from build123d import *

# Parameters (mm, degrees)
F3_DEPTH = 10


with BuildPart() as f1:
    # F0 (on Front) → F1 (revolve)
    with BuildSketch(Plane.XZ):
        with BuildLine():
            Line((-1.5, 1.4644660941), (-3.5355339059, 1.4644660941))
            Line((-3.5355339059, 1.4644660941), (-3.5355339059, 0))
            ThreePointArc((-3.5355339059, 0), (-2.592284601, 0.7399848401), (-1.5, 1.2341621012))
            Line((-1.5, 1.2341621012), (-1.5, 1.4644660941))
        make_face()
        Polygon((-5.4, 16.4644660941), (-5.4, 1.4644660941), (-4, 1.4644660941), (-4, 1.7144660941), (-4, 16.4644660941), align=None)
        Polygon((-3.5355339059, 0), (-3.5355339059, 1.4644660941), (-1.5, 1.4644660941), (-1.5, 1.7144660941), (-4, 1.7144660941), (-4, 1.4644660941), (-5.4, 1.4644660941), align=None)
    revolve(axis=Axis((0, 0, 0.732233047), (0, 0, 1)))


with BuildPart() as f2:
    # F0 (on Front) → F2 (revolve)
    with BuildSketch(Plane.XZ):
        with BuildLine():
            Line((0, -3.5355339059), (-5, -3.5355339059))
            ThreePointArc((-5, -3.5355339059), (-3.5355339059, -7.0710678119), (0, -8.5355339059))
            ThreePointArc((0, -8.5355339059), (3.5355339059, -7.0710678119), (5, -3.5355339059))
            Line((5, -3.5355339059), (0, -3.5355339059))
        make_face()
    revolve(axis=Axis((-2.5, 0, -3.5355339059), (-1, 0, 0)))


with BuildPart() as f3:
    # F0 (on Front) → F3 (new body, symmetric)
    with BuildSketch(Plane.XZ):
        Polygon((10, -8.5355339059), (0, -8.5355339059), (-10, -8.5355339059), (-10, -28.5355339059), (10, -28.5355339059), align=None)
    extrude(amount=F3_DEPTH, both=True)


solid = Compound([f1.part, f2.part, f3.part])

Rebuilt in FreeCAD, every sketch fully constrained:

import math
import FreeCAD as App
import Part
import Sketcher

V = App.Vector
Q = App.Units.Quantity

doc = App.newDocument("Part")
body = doc.addObject("PartDesign::Body", "Body")

# Sketch on XZ plane
sketch1 = doc.addObject("Sketcher::SketchObject", "Sketch")
body.addObject(sketch1)
sketch1.AttachmentSupport = (doc.XZ_Plane, [""])
sketch1.MapMode = "FlatFace"
sketch1.addGeometry([
    Part.LineSegment(V(-1.5, 1.23, 0), V(-1.5, 1.71, 0)),  # 0
    Part.LineSegment(V(-1.5, 1.71, 0), V(-4, 1.71, 0)),  # 1
    Part.LineSegment(V(-4, 1.71, 0), V(-4, 16.46, 0)),  # 2
    Part.LineSegment(V(-4, 16.46, 0), V(-5.4, 16.46, 0)),  # 3
    Part.LineSegment(V(-5.4, 16.46, 0), V(-5.4, 1.46, 0)),  # 4
    Part.LineSegment(V(-5.4, 1.46, 0), V(-3.54, 0, 0)),  # 5
    Part.ArcOfCircle(Part.Circle(V(0, -3.54, 0), V(0, 0, 1), 5), math.radians(107), math.radians(135)),  # 6
], False)
sketch1.addConstraint([
    Sketcher.Constraint("Coincident", 0, 2, 1, 1),
    Sketcher.Constraint("Coincident", 1, 2, 2, 1),
    Sketcher.Constraint("Coincident", 2, 2, 3, 1),
    Sketcher.Constraint("Coincident", 3, 2, 4, 1),
    Sketcher.Constraint("Coincident", 4, 2, 5, 1),
    Sketcher.Constraint("Coincident", 5, 2, 6, 2),
    Sketcher.Constraint("Coincident", 6, 1, 0, 1),
    Sketcher.Constraint("Vertical", 0),
    Sketcher.Constraint("Horizontal", 1),
    Sketcher.Constraint("Vertical", 2),
    Sketcher.Constraint("Horizontal", 3),
    Sketcher.Constraint("Vertical", 4),
    Sketcher.Constraint("PointOnObject", 6, 3, -2),
    Sketcher.Constraint("PointOnObject", 5, 2, -1),
    Sketcher.Constraint("Radius", 6, Q("5 mm")),
    Sketcher.Constraint("DistanceY", 4, 2, 4, 1, Q("15 mm")),
    Sketcher.Constraint("DistanceX", 1, 2, 1, 1, Q("2.5 mm")),
    Sketcher.Constraint("DistanceX", 3, 2, 3, 1, Q("1.4 mm")),
    Sketcher.Constraint("DistanceX", 1, 2, -1, 1, Q("4 mm")),
    Sketcher.Constraint("DistanceY", 6, 3, 2, 2, Q("20 mm")),
    Sketcher.Constraint("DistanceY", 2, 1, 2, 2, Q("14.75 mm")),
    Sketcher.Constraint("Distance", 5, Q("2.370843 mm")),
])
revolution = doc.addObject("PartDesign::Revolution", "Revolution")
body.addObject(revolution)
revolution.Profile = sketch1
revolution.ReferenceAxis = (sketch1, ["V_Axis"])
revolution.Angle = 360
body2 = doc.addObject("PartDesign::Body", "Body001")

# Sketch on XZ plane
sketch2 = doc.addObject("Sketcher::SketchObject", "Sketch001")
body2.addObject(sketch2)
sketch2.AttachmentSupport = (doc.getObject("XZ_Plane001"), [""])
sketch2.MapMode = "FlatFace"
sketch2.addGeometry([
    Part.ArcOfCircle(Part.Circle(V(0, -4, 0), V(0, 0, 1), 5), math.radians(180), math.radians(270)),
    Part.ArcOfCircle(Part.Circle(V(0, -4, 0), V(0, 0, 1), 5), math.radians(-90), math.radians(0)),
    Part.LineSegment(V(5, -4, 0), V(-5, -4, 0)),
], False)
sketch2.addGeometry(Part.LineSegment(V(5, -4, 0), V(-5, -4, 0)), True)  # axis
sketch2.addConstraint([
    Sketcher.Constraint("Tangent", 0, 2, 1, 1),
    Sketcher.Constraint("Coincident", 1, 2, 2, 1),
    Sketcher.Constraint("Coincident", 2, 2, 0, 1),
    Sketcher.Constraint("Horizontal", 2),
    Sketcher.Constraint("Horizontal", 3),
    Sketcher.Constraint("Coincident", 3, 1, 1, 2),
    Sketcher.Constraint("Equal", 0, 1),
    Sketcher.Constraint("PointOnObject", 0, 3, -2),
    Sketcher.Constraint("PointOnObject", 0, 2, -2),
    Sketcher.Constraint("Horizontal", 0, 3, 1, 2),
    Sketcher.Constraint("Equal", 2, 3),
    Sketcher.Constraint("Radius", 0, Q("5 mm")),
    Sketcher.Constraint("DistanceY", 0, 3, -1, 1, Q("3.535534 mm")),
])
revolution2 = doc.addObject("PartDesign::Revolution", "Revolution001")
body2.addObject(revolution2)
revolution2.Profile = sketch2
revolution2.ReferenceAxis = (sketch2, ["Axis0"])
revolution2.Angle = 360
body3 = doc.addObject("PartDesign::Body", "Body002")

# Sketch on XZ plane
sketch3 = doc.addObject("Sketcher::SketchObject", "Sketch002")
body3.addObject(sketch3)
sketch3.AttachmentSupport = (doc.getObject("XZ_Plane002"), [""])
sketch3.MapMode = "FlatFace"
sketch3.addGeometry([
    Part.LineSegment(V(10, -9, 0), V(-10, -9, 0)),
    Part.LineSegment(V(-10, -9, 0), V(-10, -29, 0)),
    Part.LineSegment(V(-10, -29, 0), V(10, -29, 0)),
    Part.LineSegment(V(10, -29, 0), V(10, -9, 0)),
], False)
sketch3.addConstraint([
    Sketcher.Constraint("Coincident", 0, 2, 1, 1),
    Sketcher.Constraint("Coincident", 1, 2, 2, 1),
    Sketcher.Constraint("Coincident", 2, 2, 3, 1),
    Sketcher.Constraint("Coincident", 3, 2, 0, 1),
    Sketcher.Constraint("Horizontal", 0),
    Sketcher.Constraint("Vertical", 1),
    Sketcher.Constraint("Horizontal", 2),
    Sketcher.Constraint("Vertical", 3),
    Sketcher.Constraint("Equal", 2, 1),
    Sketcher.Constraint("DistanceX", 0, 2, 0, 1, Q("20 mm")),
    Sketcher.Constraint("DistanceX", 0, 2, -1, 1, Q("10 mm")),
    Sketcher.Constraint("DistanceY", 0, 2, -1, 1, Q("8.535534 mm")),
])
pad1 = doc.addObject("PartDesign::Pad", "Pad")
body3.addObject(pad1)
pad1.Profile = sketch3
pad1.Length = 20
pad1.Midplane = True

doc.recompute()
